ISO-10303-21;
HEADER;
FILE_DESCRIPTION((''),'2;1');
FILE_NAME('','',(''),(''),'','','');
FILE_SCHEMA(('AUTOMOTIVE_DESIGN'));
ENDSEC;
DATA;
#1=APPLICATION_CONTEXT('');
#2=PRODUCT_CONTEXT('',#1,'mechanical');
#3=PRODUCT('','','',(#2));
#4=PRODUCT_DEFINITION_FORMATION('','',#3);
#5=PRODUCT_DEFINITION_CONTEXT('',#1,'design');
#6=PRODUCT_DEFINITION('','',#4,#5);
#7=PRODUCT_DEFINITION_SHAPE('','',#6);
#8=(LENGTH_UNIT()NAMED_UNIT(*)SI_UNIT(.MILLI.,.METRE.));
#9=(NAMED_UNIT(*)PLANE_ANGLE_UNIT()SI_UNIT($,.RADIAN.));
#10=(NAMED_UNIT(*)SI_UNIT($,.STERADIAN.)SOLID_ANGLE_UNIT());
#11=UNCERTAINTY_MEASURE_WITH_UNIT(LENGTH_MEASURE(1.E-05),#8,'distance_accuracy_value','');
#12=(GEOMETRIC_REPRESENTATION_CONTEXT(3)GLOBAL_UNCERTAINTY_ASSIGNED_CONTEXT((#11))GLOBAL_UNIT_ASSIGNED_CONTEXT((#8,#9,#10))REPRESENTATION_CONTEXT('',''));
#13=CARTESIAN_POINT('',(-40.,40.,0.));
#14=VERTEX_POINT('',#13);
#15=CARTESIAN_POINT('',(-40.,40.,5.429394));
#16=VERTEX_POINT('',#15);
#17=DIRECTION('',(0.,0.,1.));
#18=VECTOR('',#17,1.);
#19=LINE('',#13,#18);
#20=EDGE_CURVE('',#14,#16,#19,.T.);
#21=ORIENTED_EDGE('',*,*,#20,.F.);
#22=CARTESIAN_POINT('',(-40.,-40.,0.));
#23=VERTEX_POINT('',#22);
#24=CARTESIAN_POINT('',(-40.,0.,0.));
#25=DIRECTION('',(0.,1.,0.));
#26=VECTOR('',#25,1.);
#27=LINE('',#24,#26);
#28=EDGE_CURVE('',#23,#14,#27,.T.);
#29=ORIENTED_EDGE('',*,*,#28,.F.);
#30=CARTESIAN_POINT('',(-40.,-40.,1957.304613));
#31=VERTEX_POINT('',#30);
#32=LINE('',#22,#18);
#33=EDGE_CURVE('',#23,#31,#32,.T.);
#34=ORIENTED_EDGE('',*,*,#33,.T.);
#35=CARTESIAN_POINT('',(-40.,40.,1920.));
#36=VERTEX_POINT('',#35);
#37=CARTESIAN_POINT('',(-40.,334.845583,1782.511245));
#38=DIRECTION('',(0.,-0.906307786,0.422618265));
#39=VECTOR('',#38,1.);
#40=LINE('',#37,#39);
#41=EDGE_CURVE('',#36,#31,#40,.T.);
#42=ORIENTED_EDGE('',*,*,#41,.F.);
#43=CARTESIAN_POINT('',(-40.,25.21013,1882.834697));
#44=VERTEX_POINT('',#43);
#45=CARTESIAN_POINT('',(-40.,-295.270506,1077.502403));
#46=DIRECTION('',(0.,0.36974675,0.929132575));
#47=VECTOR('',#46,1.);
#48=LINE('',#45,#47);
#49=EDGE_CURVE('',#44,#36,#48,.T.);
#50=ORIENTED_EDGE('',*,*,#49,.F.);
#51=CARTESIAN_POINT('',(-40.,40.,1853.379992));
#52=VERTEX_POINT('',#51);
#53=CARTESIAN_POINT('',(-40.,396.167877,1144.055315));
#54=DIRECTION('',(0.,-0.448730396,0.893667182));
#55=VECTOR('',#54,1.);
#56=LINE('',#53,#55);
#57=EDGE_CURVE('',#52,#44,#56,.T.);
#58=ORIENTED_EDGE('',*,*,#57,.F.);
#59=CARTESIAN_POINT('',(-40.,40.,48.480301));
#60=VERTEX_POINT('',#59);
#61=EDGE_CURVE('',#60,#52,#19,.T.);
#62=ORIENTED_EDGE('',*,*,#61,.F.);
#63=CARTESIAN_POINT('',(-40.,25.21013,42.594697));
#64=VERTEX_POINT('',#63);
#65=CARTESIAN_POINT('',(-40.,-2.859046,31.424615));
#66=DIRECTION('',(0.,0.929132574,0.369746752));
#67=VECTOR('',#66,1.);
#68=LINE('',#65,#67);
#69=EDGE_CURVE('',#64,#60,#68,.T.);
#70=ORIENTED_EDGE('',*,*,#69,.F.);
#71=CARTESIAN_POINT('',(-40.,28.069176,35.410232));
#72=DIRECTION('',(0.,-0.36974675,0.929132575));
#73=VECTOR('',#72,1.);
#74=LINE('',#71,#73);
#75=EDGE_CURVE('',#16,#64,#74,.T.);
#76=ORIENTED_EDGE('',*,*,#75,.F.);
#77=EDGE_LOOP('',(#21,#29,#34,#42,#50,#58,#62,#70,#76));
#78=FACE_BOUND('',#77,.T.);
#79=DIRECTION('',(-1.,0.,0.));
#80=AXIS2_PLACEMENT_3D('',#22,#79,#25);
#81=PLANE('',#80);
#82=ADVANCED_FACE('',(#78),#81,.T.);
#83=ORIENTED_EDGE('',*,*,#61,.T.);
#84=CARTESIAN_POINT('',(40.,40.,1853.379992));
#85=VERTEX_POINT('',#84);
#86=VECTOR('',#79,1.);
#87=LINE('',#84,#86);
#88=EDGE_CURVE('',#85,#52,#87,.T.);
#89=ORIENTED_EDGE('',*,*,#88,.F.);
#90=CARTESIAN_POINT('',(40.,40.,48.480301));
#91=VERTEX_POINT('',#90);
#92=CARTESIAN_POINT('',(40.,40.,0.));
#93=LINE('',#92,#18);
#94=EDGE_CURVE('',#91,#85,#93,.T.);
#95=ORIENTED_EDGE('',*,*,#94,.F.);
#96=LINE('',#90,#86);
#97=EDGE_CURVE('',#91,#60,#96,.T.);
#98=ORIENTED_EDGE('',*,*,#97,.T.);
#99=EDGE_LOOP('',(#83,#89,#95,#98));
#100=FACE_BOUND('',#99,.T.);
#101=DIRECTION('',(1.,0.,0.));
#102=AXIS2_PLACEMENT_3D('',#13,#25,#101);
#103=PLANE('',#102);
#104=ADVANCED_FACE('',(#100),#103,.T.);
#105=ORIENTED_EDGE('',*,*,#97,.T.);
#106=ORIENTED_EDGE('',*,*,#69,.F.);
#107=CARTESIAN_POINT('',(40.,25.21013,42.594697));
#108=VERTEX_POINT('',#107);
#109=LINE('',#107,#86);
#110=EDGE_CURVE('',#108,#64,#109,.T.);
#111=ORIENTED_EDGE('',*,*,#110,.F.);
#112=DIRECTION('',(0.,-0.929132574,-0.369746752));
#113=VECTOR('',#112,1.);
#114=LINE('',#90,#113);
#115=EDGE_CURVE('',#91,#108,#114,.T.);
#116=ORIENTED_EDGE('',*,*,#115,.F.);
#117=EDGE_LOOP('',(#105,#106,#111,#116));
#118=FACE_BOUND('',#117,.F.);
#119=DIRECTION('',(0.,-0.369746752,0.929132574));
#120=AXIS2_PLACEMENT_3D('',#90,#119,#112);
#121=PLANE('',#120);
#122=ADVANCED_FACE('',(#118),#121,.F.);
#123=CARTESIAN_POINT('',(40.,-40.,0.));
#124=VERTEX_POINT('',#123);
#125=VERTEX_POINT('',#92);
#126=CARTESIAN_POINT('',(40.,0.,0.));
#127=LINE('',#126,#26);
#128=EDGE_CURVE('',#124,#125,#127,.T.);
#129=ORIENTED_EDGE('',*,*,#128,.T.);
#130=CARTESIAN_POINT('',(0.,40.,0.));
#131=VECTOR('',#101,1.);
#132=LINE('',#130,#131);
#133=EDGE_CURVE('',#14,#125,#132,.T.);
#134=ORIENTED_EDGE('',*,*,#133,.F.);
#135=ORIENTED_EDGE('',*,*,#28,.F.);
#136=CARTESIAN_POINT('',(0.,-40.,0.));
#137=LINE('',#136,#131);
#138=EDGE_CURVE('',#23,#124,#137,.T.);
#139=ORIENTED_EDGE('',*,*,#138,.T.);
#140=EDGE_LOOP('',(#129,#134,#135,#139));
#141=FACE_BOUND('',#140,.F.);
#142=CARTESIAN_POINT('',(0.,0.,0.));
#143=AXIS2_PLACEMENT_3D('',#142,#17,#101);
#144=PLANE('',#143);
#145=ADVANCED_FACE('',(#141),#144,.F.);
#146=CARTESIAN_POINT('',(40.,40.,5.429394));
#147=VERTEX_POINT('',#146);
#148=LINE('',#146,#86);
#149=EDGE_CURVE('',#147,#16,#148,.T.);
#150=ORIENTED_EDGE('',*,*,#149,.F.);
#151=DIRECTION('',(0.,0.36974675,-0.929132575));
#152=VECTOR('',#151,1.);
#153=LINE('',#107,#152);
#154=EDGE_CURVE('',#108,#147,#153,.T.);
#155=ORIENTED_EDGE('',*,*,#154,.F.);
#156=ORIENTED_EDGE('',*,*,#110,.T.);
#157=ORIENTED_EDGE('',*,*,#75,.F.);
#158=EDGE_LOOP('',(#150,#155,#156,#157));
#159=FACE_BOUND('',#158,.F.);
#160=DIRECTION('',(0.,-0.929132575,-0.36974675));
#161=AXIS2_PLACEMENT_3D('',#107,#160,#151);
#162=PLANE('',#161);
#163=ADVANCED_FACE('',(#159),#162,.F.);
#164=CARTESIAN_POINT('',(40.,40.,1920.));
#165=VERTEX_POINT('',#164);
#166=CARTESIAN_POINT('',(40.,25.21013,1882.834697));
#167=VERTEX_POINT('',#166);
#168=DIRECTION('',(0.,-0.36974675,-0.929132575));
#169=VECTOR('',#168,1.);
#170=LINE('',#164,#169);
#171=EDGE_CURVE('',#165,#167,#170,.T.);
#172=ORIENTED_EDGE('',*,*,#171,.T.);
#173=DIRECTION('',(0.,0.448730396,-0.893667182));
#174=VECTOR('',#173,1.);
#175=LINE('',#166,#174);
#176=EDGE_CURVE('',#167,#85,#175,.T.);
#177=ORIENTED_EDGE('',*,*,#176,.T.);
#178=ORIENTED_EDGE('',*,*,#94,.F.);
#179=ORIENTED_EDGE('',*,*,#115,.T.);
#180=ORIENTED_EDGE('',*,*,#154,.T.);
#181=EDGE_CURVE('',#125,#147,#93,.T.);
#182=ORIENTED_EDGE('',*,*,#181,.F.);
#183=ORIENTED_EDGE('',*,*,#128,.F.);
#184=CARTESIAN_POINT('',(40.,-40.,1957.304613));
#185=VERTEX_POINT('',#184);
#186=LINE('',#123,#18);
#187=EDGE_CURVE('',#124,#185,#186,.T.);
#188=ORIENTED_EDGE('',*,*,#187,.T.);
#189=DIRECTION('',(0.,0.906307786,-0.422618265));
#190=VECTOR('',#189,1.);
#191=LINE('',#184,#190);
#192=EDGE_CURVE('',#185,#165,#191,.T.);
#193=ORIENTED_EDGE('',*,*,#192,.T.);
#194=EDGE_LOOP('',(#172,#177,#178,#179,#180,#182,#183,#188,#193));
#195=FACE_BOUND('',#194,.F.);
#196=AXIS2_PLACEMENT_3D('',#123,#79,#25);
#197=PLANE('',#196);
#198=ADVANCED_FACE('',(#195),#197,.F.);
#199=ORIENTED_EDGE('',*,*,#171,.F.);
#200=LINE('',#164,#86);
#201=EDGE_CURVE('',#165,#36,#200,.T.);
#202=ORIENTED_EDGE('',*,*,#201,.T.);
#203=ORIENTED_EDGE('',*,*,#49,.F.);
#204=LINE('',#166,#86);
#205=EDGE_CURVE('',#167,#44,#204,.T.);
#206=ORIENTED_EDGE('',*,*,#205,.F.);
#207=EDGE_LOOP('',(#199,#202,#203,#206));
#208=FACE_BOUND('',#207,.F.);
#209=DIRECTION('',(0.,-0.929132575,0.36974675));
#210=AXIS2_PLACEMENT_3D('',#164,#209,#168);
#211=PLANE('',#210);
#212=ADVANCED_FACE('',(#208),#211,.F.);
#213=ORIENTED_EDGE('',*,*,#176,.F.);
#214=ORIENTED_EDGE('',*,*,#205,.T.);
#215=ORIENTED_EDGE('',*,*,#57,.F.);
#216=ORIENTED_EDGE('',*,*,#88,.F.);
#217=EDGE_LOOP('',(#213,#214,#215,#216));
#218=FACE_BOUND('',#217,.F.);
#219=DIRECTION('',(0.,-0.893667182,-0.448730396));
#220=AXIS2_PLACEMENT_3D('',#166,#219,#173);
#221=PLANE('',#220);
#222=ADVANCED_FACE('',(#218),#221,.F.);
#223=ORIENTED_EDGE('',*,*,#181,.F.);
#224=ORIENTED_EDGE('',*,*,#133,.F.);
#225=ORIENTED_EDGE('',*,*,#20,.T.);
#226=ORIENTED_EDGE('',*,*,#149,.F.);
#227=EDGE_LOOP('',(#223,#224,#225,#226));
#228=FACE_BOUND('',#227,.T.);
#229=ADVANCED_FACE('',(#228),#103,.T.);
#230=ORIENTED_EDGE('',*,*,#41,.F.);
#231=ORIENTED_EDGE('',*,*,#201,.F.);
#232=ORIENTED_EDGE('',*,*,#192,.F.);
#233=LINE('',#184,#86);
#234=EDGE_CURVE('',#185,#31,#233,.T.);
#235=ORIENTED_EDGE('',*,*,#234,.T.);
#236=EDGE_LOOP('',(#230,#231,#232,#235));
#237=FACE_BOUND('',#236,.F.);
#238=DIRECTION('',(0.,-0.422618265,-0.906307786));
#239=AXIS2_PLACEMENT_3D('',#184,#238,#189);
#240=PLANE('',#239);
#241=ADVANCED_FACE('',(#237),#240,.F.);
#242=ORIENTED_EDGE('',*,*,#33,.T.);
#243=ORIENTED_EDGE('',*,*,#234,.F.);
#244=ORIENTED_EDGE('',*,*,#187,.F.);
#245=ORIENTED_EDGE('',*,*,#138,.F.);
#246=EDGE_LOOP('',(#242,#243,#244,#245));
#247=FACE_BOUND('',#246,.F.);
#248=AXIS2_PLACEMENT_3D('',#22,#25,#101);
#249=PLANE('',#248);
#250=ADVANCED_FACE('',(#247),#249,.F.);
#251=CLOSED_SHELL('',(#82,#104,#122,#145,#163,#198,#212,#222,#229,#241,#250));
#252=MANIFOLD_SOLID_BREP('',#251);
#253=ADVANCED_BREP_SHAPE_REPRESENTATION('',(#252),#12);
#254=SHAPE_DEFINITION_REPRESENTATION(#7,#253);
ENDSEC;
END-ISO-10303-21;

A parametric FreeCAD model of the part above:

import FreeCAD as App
import Part
import Sketcher
from FreeCAD import Vector
Q = App.Units.Quantity

doc = App.newDocument("Part")
body = doc.addObject("PartDesign::Body", "Body")

# Sketch on XY plane
sketch1 = doc.addObject("Sketcher::SketchObject", "Sketch")
body.addObject(sketch1)
sketch1.AttachmentSupport = (doc.XY_Plane, [""])
sketch1.MapMode = "FlatFace"
sketch1.addGeometry(Part.LineSegment(Vector(-40, 40, 0), Vector(-40, -40, 0)), False)
sketch1.addGeometry(Part.LineSegment(Vector(-40, -40, 0), Vector(40, -40, 0)), False)
sketch1.addGeometry(Part.LineSegment(Vector(40, -40, 0), Vector(40, 40, 0)), False)
sketch1.addGeometry(Part.LineSegment(Vector(40, 40, 0), Vector(-40, 40, 0)), False)
sketch1.addConstraint(Sketcher.Constraint("Coincident", 0, 2, 1, 1))
sketch1.addConstraint(Sketcher.Constraint("Coincident", 1, 2, 2, 1))
sketch1.addConstraint(Sketcher.Constraint("Coincident", 2, 2, 3, 1))
sketch1.addConstraint(Sketcher.Constraint("Coincident", 3, 2, 0, 1))
sketch1.addConstraint(Sketcher.Constraint("Vertical", 0))
sketch1.addConstraint(Sketcher.Constraint("Horizontal", 1))
sketch1.addConstraint(Sketcher.Constraint("Vertical", 2))
sketch1.addConstraint(Sketcher.Constraint("Horizontal", 3))
sketch1.addConstraint(Sketcher.Constraint("Symmetric", 0, 2, 2, 2, -1, 1))
sketch1.addConstraint(Sketcher.Constraint("Equal", 3, 0))
sketch1.addConstraint(Sketcher.Constraint("DistanceX", 1, 1, 1, 2, Q("80 mm")))
pad1 = doc.addObject("PartDesign::Pad", "Pad")
body.addObject(pad1)
pad1.Profile = sketch1
pad1.Length = 2000

# Sketch on YZ plane
sketch2 = doc.addObject("Sketcher::SketchObject", "Sketch001")
body.addObject(sketch2)
sketch2.AttachmentSupport = (doc.YZ_Plane, [""])
sketch2.MapMode = "FlatFace"
sketch2.AttachmentOffset = App.Placement(Vector(0, 0, 40), App.Rotation())
sketch2.addGeometry(Part.LineSegment(Vector(40, 1853, 0), Vector(40, 1920, 0)), False)
sketch2.addGeometry(Part.LineSegment(Vector(40, 1920, 0), Vector(25, 1883, 0)), False)
sketch2.addGeometry(Part.LineSegment(Vector(25, 1883, 0), Vector(40, 1853, 0)), False)
sketch2.addGeometry(Part.LineSegment(Vector(25, 43, 0), Vector(40, 5, 0)), False)
sketch2.addGeometry(Part.LineSegment(Vector(40, 5, 0), Vector(40, 48, 0)), False)
sketch2.addGeometry(Part.LineSegment(Vector(40, 48, 0), Vector(25, 43, 0)), False)
sketch2.addGeometry(Part.LineSegment(Vector(-40, 2000, 0), Vector(-40, 1957, 0)), False)
sketch2.addGeometry(Part.LineSegment(Vector(-40, 1957, 0), Vector(40, 1920, 0)), False)
sketch2.addGeometry(Part.LineSegment(Vector(40, 1920, 0), Vector(40, 2000, 0)), False)
sketch2.addGeometry(Part.LineSegment(Vector(40, 2000, 0), Vector(-40, 2000, 0)), False)
sketch2.addConstraint(Sketcher.Constraint("Coincident", 0, 2, 1, 1))
sketch2.addConstraint(Sketcher.Constraint("Coincident", 1, 2, 2, 1))
sketch2.addConstraint(Sketcher.Constraint("Coincident", 2, 2, 0, 1))
sketch2.addConstraint(Sketcher.Constraint("Coincident", 3, 2, 4, 1))
sketch2.addConstraint(Sketcher.Constraint("Coincident", 4, 2, 5, 1))
sketch2.addConstraint(Sketcher.Constraint("Coincident", 5, 2, 3, 1))
sketch2.addConstraint(Sketcher.Constraint("Coincident", 6, 2, 7, 1))
sketch2.addConstraint(Sketcher.Constraint("Coincident", 7, 2, 8, 1))
sketch2.addConstraint(Sketcher.Constraint("Coincident", 8, 2, 9, 1))
sketch2.addConstraint(Sketcher.Constraint("Coincident", 9, 2, 6, 1))
sketch2.addConstraint(Sketcher.Constraint("Vertical", 0))
sketch2.addConstraint(Sketcher.Constraint("Vertical", 4))
sketch2.addConstraint(Sketcher.Constraint("Vertical", 6))
sketch2.addConstraint(Sketcher.Constraint("Vertical", 8))
sketch2.addConstraint(Sketcher.Constraint("Horizontal", 9))
sketch2.addConstraint(Sketcher.Constraint("Coincident", 7, 2, 0, 2))
sketch2.addConstraint(Sketcher.Constraint("Perpendicular", 3, 5))
sketch2.addConstraint(Sketcher.Constraint("Vertical", 2, 2, 3, 2))
sketch2.addConstraint(Sketcher.Constraint("Vertical", 1, 2, 5, 2))
sketch2.addConstraint(Sketcher.Constraint("Equal", 9, 8))
sketch2.addConstraint(Sketcher.Constraint("Equal", 1, 3))
sketch2.addConstraint(Sketcher.Constraint("DistanceX", 9, 2, 9, 1, Q("80 mm")))
sketch2.addConstraint(Sketcher.Constraint("Angle", 7, Q("-25 deg")))
sketch2.addConstraint(Sketcher.Constraint("Distance", 1, Q("40 mm")))
sketch2.addConstraint(Sketcher.Constraint("DistanceX", -1, 1, 0, 2, Q("40 mm")))
sketch2.addConstraint(Sketcher.Constraint("DistanceY", -1, 1, 0, 2, Q("1920 mm")))
sketch2.addConstraint(Sketcher.Constraint("Angle", 1, Q("-111.7 deg")))
sketch2.addConstraint(Sketcher.Constraint("DistanceY", 5, 2, 1, 2, Q("1840.24 mm")))
sketch2.addConstraint(Sketcher.Constraint("DistanceY", 0, 1, 0, 2, Q("66.620008 mm")))
pocket1 = doc.addObject("PartDesign::Pocket", "Pocket")
body.addObject(pocket1)
pocket1.Profile = sketch2
pocket1.Type = "ThroughAll"

doc.recompute()
